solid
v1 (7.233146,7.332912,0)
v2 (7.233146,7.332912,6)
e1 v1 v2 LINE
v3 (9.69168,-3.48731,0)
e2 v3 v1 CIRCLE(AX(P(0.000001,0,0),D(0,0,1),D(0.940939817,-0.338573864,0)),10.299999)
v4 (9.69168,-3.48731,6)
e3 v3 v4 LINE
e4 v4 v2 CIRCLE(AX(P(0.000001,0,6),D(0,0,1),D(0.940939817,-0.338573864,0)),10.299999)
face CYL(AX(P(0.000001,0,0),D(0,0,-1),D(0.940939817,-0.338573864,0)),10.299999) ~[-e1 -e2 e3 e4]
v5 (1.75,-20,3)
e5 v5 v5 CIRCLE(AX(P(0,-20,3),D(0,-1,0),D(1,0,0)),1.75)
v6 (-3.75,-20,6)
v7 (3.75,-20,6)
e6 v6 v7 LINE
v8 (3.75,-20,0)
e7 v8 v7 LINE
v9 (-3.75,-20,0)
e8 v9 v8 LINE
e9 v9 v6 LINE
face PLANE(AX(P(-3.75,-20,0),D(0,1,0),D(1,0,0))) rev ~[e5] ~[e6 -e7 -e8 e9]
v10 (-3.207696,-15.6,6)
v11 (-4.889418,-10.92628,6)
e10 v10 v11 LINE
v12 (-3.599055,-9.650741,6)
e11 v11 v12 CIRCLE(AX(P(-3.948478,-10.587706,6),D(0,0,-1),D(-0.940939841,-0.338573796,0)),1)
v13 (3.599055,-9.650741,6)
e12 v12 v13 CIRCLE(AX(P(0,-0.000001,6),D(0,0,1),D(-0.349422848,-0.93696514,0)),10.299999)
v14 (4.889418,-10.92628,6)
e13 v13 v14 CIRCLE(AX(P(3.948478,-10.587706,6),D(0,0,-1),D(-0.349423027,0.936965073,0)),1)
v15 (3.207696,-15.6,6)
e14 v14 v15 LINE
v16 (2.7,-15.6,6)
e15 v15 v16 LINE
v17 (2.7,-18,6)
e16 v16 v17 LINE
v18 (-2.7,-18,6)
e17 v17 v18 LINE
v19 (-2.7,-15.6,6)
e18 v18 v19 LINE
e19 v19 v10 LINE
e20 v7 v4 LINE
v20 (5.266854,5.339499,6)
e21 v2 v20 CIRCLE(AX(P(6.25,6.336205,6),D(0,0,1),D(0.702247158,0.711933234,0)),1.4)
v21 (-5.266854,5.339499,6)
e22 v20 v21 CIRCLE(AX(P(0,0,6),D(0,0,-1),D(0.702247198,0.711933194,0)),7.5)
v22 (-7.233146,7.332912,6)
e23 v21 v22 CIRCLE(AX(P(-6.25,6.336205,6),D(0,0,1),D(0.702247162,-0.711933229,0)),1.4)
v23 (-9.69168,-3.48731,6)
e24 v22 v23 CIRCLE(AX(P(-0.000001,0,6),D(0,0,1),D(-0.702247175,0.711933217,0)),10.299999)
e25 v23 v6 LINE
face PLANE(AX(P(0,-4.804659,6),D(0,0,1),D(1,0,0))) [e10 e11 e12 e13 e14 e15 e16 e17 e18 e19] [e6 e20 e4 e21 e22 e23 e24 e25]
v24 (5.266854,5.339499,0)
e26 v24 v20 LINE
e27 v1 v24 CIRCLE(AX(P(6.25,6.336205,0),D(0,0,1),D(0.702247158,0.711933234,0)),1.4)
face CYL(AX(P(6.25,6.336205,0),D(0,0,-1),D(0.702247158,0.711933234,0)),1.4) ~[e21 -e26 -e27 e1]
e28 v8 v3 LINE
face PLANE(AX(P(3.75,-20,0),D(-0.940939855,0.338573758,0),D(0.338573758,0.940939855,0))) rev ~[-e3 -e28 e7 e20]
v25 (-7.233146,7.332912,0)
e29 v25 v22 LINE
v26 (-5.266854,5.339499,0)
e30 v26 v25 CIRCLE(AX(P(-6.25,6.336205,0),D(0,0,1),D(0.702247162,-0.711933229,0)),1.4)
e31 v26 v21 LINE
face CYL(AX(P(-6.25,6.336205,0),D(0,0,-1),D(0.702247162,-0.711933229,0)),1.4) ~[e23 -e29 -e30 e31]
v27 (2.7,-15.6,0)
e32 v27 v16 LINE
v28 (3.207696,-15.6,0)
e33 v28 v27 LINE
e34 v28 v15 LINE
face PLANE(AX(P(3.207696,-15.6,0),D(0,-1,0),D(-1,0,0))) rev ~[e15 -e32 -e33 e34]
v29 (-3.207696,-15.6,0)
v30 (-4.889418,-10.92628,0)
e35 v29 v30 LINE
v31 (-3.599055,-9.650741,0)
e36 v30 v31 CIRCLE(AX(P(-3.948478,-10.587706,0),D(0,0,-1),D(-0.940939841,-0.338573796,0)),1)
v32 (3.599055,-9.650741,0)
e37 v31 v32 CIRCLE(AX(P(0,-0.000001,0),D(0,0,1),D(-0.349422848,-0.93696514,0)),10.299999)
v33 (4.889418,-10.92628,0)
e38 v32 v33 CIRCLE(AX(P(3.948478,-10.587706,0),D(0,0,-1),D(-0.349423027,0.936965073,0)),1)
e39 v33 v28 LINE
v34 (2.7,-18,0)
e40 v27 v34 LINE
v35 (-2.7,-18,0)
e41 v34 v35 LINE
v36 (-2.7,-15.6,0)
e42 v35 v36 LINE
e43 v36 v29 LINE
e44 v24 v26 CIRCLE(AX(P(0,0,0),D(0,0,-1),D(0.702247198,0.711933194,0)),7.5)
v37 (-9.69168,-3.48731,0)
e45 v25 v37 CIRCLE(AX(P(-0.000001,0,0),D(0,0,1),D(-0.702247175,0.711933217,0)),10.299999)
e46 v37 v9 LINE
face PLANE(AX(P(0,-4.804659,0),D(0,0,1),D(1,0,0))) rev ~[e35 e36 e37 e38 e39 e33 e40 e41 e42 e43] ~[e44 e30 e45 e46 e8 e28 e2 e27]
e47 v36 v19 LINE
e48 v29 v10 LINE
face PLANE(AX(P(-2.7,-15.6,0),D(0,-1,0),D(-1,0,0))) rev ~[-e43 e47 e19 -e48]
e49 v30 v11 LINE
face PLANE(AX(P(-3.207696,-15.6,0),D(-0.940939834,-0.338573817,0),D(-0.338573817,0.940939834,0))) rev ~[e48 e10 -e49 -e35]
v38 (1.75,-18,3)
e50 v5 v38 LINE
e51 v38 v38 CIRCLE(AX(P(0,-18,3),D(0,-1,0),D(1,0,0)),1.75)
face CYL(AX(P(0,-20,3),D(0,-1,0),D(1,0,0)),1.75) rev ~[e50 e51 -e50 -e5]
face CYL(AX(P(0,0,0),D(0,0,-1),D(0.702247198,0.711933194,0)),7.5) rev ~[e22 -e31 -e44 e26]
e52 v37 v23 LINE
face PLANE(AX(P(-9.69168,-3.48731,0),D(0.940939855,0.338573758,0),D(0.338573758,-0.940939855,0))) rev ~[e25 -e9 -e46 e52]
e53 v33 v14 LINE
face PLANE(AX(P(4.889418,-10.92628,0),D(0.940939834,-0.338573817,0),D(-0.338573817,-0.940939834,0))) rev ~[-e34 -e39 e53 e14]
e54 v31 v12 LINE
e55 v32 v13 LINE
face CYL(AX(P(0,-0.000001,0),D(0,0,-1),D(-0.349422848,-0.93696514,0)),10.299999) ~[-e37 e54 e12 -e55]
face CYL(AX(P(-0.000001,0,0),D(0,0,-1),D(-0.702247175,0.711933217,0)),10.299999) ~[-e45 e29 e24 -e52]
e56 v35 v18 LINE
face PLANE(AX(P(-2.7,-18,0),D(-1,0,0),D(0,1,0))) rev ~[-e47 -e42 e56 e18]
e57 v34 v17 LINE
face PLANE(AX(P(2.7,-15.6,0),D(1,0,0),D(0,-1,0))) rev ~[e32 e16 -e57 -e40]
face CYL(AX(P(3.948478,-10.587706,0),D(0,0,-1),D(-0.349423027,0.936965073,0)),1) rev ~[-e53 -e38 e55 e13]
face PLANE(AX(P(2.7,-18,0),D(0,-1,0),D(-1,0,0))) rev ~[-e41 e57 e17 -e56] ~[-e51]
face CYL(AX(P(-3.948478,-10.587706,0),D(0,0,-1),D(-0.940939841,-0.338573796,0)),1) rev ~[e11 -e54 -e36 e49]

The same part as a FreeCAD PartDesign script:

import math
import FreeCAD as App
import Part
import Sketcher

doc = App.newDocument("Part")
body = doc.addObject("PartDesign::Body", "Body")

# Sketch on XY plane
sketch1 = body.newObject("Sketcher::SketchObject", "Sketch")
sketch1.AttachmentSupport = (doc.getObject("XY_Plane"), [""])
sketch1.MapMode = "FlatFace"
sketch1.addGeometry([
    Part.ArcOfCircle(Part.Circle(App.Vector(0, 0, 0), App.Vector(0, 0, 1), 7.5), math.radians(134.607576), math.radians(405.392424)),  # 0
    Part.ArcOfCircle(Part.Circle(App.Vector(-6.25, 6.336205, 0), App.Vector(0, 0, 1), 1.4), math.radians(-45.392427), math.radians(134.607573)),  # 1
    Part.ArcOfCircle(Part.Circle(App.Vector(-0.000001, 0, 0), App.Vector(0, 0, 1), 10.299999), math.radians(134.607574), math.radians(199.79001)),  # 2
    Part.LineSegment(App.Vector(-9.69168, -3.48731, 0), App.Vector(-3.75, -20, 0)),  # 3
    Part.LineSegment(App.Vector(-3.75, -20, 0), App.Vector(3.75, -20, 0)),  # 4
    Part.LineSegment(App.Vector(3.75, -20, 0), App.Vector(9.69168, -3.48731, 0)),  # 5
    Part.ArcOfCircle(Part.Circle(App.Vector(0.000001, 0, 0), App.Vector(0, 0, 1), 10.299999), math.radians(-19.79001), math.radians(45.392426)),  # 6
    Part.ArcOfCircle(Part.Circle(App.Vector(6.25, 6.336205, 0), App.Vector(0, 0, 1), 1.4), math.radians(45.392427), math.radians(225.392427)),  # 7
    Part.LineSegment(App.Vector(-3.207696, -15.6, 0), App.Vector(-4.889418, -10.92628, 0)),  # 8
    Part.ArcOfCircle(Part.Circle(App.Vector(-3.948478, -10.587706, 0), App.Vector(0, 0, 1), 1), math.radians(69.547971), math.radians(199.790006)),  # 9
    Part.ArcOfCircle(Part.Circle(App.Vector(0, -0.000001, 0), App.Vector(0, 0, 1), 10.299999), math.radians(-110.452018), math.radians(-69.547982)),  # 10
    Part.ArcOfCircle(Part.Circle(App.Vector(3.948478, -10.587706, 0), App.Vector(0, 0, 1), 1), math.radians(-19.790006), math.radians(110.452029)),  # 11
    Part.LineSegment(App.Vector(4.889418, -10.92628, 0), App.Vector(3.207696, -15.6, 0)),  # 12
    Part.LineSegment(App.Vector(3.207696, -15.6, 0), App.Vector(2.7, -15.6, 0)),  # 13
    Part.LineSegment(App.Vector(2.7, -15.6, 0), App.Vector(2.7, -18, 0)),  # 14
    Part.LineSegment(App.Vector(2.7, -18, 0), App.Vector(-2.7, -18, 0)),  # 15
    Part.LineSegment(App.Vector(-2.7, -18, 0), App.Vector(-2.7, -15.6, 0)),  # 16
    Part.LineSegment(App.Vector(-2.7, -15.6, 0), App.Vector(-3.207696, -15.6, 0)),  # 17
], False)
sketch1.addConstraint([
    Sketcher.Constraint("Tangent", 0, 1, 1, 1),
    Sketcher.Constraint("Tangent", 1, 2, 2, 1),
    Sketcher.Constraint("Tangent", 2, 2, 3, 1),
    Sketcher.Constraint("Coincident", 3, 2, 4, 1),
    Sketcher.Constraint("Coincident", 4, 2, 5, 1),
    Sketcher.Constraint("Tangent", 5, 2, 6, 1),
    Sketcher.Constraint("Tangent", 6, 2, 7, 1),
    Sketcher.Constraint("Tangent", 7, 2, 0, 2),
    Sketcher.Constraint("Tangent", 8, 2, 9, 2),
    Sketcher.Constraint("Tangent", 9, 1, 10, 1),
    Sketcher.Constraint("Tangent", 10, 2, 11, 2),
    Sketcher.Constraint("Tangent", 11, 1, 12, 1),
    Sketcher.Constraint("Coincident", 12, 2, 13, 1),
    Sketcher.Constraint("Coincident", 13, 2, 14, 1),
    Sketcher.Constraint("Coincident", 14, 2, 15, 1),
    Sketcher.Constraint("Coincident", 15, 2, 16, 1),
    Sketcher.Constraint("Coincident", 16, 2, 17, 1),
    Sketcher.Constraint("Coincident", 17, 2, 8, 1),
    Sketcher.Constraint("Horizontal", 4),
    Sketcher.Constraint("Horizontal", 13),
    Sketcher.Constraint("Vertical", 14),
    Sketcher.Constraint("Horizontal", 15),
    Sketcher.Constraint("Vertical", 16),
    Sketcher.Constraint("Horizontal", 17),
    Sketcher.Constraint("Coincident", 0, 3, -1, 1),
    Sketcher.Constraint("Coincident", 2, 3, -1, 1),
    Sketcher.Constraint("Coincident", 6, 3, -1, 1),
    Sketcher.Constraint("Coincident", 10, 3, -1, 1),
    Sketcher.Constraint("Equal", 2, 6),
    Sketcher.Constraint("Equal", 6, 10),
    Sketcher.Constraint("Equal", 9, 11),
    Sketcher.Constraint("Symmetric", 8, 2, 11, 1, -2),
    Sketcher.Constraint("Symmetric", 13, 2, 16, 2, -2),
    Sketcher.Constraint("Parallel", 3, 8),
    Sketcher.Constraint("Parallel", 5, 12),
    Sketcher.Constraint("Horizontal", 1, 3, 7, 3),
    Sketcher.Constraint("Radius", 9, 1.0),
    Sketcher.Constraint("Radius", 0, 7.5),
    Sketcher.Constraint("Radius", 1, 1.4),
    Sketcher.Constraint("DistanceX", 4, 1, 4, 2, 7.5),
    Sketcher.Constraint("DistanceX", 15, 2, 15, 1, 5.4),
    Sketcher.Constraint("DistanceY", 14, 2, 14, 1, 2.4),
    Sketcher.Constraint("DistanceY", 3, 2, -1, 1, 20.0),
    Sketcher.Constraint("DistanceY", 14, 2, -1, 1, 18.0),
    Sketcher.Constraint("DistanceX", 1, 3, 7, 3, 12.5),
    Sketcher.Constraint("DistanceX", 2, 2, 9, 3, 5.743202),
])
pad1 = body.newObject("PartDesign::Pad", "Pad")
pad1.Profile = sketch1
pad1.Length = 6

# Sketch on XZ plane
sketch2 = body.newObject("Sketcher::SketchObject", "Sketch001")
sketch2.AttachmentSupport = (doc.getObject("XZ_Plane"), [""])
sketch2.MapMode = "FlatFace"
sketch2.AttachmentOffset = App.Placement(App.Vector(0, 0, 20), App.Rotation())
sketch2.addGeometry(Part.Circle(App.Vector(0, 3, 0), App.Vector(0, 0, 1), 1.75), False)
sketch2.addConstraint([
    Sketcher.Constraint("PointOnObject", 0, 3, -2),
    Sketcher.Constraint("Diameter", 0, 3.5),
    Sketcher.Constraint("DistanceY", -1, 1, 0, 3, 3.0),
])
pocket1 = body.newObject("PartDesign::Pocket", "Pocket")
pocket1.Profile = sketch2
pocket1.Length = 2

doc.recompute()
